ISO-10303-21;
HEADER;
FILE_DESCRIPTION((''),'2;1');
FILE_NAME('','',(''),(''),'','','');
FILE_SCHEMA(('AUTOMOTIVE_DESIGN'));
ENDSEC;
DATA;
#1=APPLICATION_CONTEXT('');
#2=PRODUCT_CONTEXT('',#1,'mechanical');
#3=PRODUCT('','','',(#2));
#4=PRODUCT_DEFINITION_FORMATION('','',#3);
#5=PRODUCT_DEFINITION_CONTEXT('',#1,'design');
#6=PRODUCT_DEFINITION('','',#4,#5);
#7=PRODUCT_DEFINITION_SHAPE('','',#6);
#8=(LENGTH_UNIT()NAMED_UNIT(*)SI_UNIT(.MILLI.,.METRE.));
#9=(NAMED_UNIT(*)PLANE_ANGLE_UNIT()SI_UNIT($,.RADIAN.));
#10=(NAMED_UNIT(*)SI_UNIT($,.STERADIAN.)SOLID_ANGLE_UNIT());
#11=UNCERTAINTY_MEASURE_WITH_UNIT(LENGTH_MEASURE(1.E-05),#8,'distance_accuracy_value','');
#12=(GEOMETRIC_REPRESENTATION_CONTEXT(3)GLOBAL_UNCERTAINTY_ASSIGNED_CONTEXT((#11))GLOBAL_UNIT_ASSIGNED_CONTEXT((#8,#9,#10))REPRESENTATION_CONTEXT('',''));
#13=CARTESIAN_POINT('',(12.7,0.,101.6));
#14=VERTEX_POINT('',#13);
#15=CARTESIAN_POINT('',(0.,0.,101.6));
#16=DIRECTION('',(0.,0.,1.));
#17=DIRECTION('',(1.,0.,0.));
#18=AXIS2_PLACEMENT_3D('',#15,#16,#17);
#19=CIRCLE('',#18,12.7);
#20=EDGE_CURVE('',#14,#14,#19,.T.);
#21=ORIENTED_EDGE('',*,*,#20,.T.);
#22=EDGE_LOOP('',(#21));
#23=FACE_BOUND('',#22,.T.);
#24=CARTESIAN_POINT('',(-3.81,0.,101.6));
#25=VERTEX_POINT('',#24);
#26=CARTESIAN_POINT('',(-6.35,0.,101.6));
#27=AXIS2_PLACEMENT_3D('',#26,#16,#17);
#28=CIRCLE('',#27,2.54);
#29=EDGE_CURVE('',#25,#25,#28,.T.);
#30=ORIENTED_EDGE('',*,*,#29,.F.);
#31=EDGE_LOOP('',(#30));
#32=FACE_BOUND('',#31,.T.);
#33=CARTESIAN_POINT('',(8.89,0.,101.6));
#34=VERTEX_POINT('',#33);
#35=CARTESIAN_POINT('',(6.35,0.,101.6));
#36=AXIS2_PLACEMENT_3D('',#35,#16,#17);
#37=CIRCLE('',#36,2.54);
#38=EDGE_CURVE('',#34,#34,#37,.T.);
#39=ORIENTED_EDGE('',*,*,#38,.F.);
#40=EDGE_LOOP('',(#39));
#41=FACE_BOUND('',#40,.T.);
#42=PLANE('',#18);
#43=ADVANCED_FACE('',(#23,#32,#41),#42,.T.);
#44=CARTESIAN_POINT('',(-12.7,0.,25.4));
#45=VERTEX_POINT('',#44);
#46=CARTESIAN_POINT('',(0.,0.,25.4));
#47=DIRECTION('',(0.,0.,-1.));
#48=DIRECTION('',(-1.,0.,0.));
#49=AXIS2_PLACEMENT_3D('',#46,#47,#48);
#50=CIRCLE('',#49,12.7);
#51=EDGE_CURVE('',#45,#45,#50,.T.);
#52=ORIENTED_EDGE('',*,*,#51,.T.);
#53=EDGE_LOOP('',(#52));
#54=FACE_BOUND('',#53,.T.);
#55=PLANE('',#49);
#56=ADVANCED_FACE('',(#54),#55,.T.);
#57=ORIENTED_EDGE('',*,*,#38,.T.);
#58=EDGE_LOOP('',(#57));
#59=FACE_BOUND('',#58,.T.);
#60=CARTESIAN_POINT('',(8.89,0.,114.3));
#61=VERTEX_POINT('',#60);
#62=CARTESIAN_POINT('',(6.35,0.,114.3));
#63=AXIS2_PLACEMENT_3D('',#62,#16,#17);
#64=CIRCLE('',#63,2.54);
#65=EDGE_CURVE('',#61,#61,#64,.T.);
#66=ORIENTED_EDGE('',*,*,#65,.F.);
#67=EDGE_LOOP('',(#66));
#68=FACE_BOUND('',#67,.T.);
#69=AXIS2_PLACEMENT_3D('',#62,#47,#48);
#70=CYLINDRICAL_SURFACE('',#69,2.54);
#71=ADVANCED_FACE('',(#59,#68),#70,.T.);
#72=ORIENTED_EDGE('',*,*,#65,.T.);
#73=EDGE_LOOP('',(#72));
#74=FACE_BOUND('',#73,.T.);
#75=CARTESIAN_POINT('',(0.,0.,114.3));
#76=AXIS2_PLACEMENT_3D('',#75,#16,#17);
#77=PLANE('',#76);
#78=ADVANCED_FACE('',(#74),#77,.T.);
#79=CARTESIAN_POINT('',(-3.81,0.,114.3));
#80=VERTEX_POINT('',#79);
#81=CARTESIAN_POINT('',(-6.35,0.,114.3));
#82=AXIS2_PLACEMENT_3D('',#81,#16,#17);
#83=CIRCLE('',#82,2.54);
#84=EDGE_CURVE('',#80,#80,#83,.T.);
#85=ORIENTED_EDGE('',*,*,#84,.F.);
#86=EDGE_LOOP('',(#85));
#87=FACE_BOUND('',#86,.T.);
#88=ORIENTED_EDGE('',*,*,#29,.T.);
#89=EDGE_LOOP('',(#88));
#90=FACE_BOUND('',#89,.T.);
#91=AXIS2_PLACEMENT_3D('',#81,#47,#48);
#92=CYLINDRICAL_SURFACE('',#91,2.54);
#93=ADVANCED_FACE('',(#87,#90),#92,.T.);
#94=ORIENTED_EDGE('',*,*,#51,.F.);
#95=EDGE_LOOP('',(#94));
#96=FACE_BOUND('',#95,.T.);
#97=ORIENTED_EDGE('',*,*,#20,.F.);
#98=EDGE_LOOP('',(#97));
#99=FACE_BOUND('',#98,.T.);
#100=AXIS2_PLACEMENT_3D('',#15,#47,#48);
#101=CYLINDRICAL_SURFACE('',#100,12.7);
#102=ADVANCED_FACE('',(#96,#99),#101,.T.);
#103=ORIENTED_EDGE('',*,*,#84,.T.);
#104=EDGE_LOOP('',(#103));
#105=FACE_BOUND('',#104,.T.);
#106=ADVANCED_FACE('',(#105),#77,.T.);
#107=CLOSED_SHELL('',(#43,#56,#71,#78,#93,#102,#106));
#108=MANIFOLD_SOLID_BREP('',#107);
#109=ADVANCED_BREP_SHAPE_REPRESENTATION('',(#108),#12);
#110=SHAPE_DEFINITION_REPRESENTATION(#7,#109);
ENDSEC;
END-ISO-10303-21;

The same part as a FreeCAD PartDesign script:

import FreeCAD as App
import Part
import Sketcher

V = App.Vector
Q = App.Units.Quantity

doc = App.newDocument("Part")
body = doc.addObject("PartDesign::Body", "Body")

# Sketch on XY plane
sketch1 = doc.addObject("Sketcher::SketchObject", "Sketch")
body.addObject(sketch1)
sketch1.AttachmentSupport = (doc.XY_Plane, [""])
sketch1.MapMode = "FlatFace"
sketch1.addGeometry(Part.Circle(V(0, 0, 0), V(0, 0, 1), 13), False)
sketch1.addConstraint([
    Sketcher.Constraint("Coincident", 0, 3, -1, 1),
    Sketcher.Constraint("Diameter", 0, Q("1 in")),
])
pad1 = doc.addObject("PartDesign::Pad", "Pad")
body.addObject(pad1)
pad1.Profile = sketch1
pad1.Length = Q("4 in")

# Sketch on XY plane
sketch2 = doc.addObject("Sketcher::SketchObject", "Sketch001")
body.addObject(sketch2)
sketch2.AttachmentSupport = (doc.XY_Plane, [""])
sketch2.MapMode = "FlatFace"
sketch2.AttachmentOffset = App.Placement(V(0, 0, 4 * 25.4), App.Rotation())
sketch2.addGeometry([
    Part.Circle(V(-6.3, 0, 0), V(0, 0, 1), 2.5),
    Part.Circle(V(6.3, 0, 0), V(0, 0, 1), 2.5),
], False)
sketch2.addConstraint([
    Sketcher.Constraint("Equal", 0, 1),
    Sketcher.Constraint("Symmetric", 0, 3, 1, 3, -1, 1),
    Sketcher.Constraint("PointOnObject", 0, 3, -1),
    Sketcher.Constraint("Diameter", 0, Q("0.2 in")),
    Sketcher.Constraint("DistanceX", 0, 3, 1, 3, Q("0.5 in")),
])
pad2 = doc.addObject("PartDesign::Pad", "Pad001")
body.addObject(pad2)
pad2.Profile = sketch2
pad2.Length = Q("0.5 in")

# Sketch on XY plane
sketch3 = doc.addObject("Sketcher::SketchObject", "Sketch002")
body.addObject(sketch3)
sketch3.AttachmentSupport = (doc.XY_Plane, [""])
sketch3.MapMode = "FlatFace"
sketch3.addGeometry(Part.Circle(V(0, 0, 0), V(0, 0, 1), 14), False)
sketch3.addConstraint([
    Sketcher.Constraint("Coincident", 0, 3, -1, 1),
    Sketcher.Constraint("Diameter", 0, Q("28.39258 mm")),
])
pocket1 = doc.addObject("PartDesign::Pocket", "Pocket")
body.addObject(pocket1)
pocket1.Profile = sketch3
pocket1.Length = Q("1 in")
pocket1.Reversed = True

doc.recompute()
